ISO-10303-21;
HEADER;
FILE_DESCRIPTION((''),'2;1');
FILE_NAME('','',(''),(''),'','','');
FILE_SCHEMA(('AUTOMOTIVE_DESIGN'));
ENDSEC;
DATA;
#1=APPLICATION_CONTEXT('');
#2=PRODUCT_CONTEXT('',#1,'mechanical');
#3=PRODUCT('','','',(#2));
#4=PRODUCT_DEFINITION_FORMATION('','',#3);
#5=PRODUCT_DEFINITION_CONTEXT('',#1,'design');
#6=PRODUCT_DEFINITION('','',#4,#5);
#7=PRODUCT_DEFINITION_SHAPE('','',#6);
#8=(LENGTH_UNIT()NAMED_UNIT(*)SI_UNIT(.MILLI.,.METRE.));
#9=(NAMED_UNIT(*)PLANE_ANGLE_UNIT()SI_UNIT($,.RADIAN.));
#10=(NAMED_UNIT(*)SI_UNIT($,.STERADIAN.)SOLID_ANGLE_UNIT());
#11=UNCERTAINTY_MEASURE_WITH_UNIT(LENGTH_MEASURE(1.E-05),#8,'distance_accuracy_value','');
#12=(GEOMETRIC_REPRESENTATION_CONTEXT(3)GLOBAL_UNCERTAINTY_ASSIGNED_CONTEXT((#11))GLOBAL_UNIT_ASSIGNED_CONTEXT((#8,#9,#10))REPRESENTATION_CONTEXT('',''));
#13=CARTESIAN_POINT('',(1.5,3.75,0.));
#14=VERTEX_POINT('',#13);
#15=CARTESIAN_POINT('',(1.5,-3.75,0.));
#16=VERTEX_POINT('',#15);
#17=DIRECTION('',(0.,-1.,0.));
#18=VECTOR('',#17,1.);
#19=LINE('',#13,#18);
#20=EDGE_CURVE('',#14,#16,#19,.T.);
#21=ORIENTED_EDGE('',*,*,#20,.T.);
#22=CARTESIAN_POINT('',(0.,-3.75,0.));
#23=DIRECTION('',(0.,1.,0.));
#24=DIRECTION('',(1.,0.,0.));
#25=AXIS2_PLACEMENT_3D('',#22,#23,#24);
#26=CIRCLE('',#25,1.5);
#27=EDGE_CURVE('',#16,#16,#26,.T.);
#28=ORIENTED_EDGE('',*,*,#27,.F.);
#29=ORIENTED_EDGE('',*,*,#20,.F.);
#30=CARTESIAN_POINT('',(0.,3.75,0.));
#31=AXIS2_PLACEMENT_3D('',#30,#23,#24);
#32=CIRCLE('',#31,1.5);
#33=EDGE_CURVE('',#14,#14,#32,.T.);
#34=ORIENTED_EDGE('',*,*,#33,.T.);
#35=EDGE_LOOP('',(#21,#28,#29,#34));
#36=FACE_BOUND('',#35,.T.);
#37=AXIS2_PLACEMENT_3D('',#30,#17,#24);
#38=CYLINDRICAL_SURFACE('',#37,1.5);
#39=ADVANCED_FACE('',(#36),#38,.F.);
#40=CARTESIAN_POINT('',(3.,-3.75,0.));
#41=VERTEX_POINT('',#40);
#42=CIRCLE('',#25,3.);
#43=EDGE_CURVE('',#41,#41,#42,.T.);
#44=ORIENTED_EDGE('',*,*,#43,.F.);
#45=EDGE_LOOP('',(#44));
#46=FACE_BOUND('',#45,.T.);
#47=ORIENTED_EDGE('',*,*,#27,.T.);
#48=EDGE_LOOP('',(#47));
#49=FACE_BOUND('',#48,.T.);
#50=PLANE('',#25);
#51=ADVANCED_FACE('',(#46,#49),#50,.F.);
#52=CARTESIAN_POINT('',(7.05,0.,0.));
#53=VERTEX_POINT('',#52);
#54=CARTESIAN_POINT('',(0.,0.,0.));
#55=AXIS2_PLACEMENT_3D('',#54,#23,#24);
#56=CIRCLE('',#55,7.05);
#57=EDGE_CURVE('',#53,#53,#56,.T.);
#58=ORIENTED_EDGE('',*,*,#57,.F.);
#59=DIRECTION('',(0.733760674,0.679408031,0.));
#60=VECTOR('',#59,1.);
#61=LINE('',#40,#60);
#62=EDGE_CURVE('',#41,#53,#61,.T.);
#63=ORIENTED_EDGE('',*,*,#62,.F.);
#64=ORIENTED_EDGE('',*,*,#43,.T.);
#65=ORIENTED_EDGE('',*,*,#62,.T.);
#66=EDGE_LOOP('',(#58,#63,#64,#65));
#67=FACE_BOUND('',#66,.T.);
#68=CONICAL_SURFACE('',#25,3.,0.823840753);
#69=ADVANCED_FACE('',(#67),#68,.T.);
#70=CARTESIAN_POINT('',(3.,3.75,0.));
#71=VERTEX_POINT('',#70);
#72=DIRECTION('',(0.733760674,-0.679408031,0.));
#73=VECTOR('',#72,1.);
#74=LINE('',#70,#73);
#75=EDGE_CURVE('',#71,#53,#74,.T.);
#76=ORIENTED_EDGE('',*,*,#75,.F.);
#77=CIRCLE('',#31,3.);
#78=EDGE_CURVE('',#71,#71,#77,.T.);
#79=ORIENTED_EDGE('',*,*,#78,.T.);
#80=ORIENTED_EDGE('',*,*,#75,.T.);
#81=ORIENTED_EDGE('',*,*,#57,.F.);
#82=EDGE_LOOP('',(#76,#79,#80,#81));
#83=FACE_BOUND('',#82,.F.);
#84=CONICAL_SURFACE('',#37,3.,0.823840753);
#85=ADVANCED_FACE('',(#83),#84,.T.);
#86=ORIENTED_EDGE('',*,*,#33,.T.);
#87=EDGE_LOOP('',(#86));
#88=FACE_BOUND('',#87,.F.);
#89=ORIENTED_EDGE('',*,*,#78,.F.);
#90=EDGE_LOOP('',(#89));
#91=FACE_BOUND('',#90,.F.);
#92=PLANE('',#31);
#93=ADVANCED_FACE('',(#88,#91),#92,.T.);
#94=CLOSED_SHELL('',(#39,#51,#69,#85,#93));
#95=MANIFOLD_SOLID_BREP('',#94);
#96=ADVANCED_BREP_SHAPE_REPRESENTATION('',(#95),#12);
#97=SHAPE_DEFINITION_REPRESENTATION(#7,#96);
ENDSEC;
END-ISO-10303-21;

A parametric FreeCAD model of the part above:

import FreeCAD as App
import Part
import Sketcher
from FreeCAD import Vector
Q = App.Units.Quantity

doc = App.newDocument("Part")
params = doc.addObject("Spreadsheet::Sheet", "Params")
for row, (alias, value) in enumerate([
    ("sketch1_width", "1.5 mm"),
    ("sketch1_height", "7.5 mm"),
    ("revolution_angle", "360 deg"),
], start=1):
    params.set(f"A{row}", alias)
    params.set(f"B{row}", "=" + value)
    params.setAlias(f"B{row}", alias)

body = doc.addObject("PartDesign::Body", "Body")

# Sketch on XY plane
sketch1 = body.newObject("Sketcher::SketchObject", "Sketch")
sketch1.AttachmentSupport = (doc.getObject("XY_Plane"), [""])
sketch1.MapMode = "FlatFace"
sketch1.addGeometry([
    Part.LineSegment(Vector(3, 3.8, 0), Vector(1.5, 3.8, 0)),  # 0
    Part.LineSegment(Vector(1.5, 3.8, 0), Vector(1.5, -3.8, 0)),  # 1
    Part.LineSegment(Vector(1.5, -3.8, 0), Vector(3, -3.8, 0)),  # 2
    Part.LineSegment(Vector(3, -3.8, 0), Vector(7, 0, 0)),  # 3
    Part.LineSegment(Vector(7, 0, 0), Vector(3, 3.8, 0)),  # 4
], False)
sketch1.addConstraint([
    Sketcher.Constraint("Coincident", 0, 2, 1, 1),
    Sketcher.Constraint("Coincident", 1, 2, 2, 1),
    Sketcher.Constraint("Coincident", 2, 2, 3, 1),
    Sketcher.Constraint("Coincident", 3, 2, 4, 1),
    Sketcher.Constraint("Coincident", 4, 2, 0, 1),
    Sketcher.Constraint("Horizontal", 0),
    Sketcher.Constraint("Vertical", 1),
    Sketcher.Constraint("Horizontal", 2),
    Sketcher.Constraint("Symmetric", 2, 2, 4, 2, -1),
    Sketcher.Constraint("PointOnObject", 3, 2, -1),
    Sketcher.Constraint("DistanceX", 0, 2, 0, 1, Q("1.5 mm")),
    Sketcher.Constraint("DistanceY", 1, 2, 1, 1, Q("7.5 mm")),
    Sketcher.Constraint("DistanceX", -1, 1, 2, 2, Q("3 mm")),
    Sketcher.Constraint("DistanceX", -1, 1, 3, 2, Q("7.05 mm")),
])
sketch1.setExpression("Constraints[10]", "Params.sketch1_width")
sketch1.setExpression("Constraints[11]", "Params.sketch1_height")
revolution = body.newObject("PartDesign::Revolution", "Revolution")
revolution.Profile = sketch1
revolution.ReferenceAxis = (sketch1, ["V_Axis"])
revolution.setExpression("Angle", "Params.revolution_angle")

doc.recompute()
